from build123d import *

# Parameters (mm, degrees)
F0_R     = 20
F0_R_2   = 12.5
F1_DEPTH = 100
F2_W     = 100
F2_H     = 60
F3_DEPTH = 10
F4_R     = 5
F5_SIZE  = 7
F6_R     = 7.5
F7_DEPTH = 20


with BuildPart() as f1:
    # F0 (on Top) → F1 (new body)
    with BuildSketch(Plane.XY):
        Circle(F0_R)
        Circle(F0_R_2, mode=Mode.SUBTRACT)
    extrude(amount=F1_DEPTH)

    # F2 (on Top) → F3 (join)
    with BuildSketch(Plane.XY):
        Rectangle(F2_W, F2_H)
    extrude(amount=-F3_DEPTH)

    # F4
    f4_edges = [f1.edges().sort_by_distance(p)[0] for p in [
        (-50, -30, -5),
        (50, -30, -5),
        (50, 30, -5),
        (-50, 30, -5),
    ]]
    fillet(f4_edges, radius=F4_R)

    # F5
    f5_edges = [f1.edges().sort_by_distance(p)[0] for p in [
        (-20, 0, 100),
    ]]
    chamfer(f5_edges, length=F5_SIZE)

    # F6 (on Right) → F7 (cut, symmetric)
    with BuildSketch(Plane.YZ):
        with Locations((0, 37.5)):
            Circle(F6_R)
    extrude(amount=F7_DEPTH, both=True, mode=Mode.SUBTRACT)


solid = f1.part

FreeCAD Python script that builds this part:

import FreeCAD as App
import Part
import Sketcher

V = App.Vector


def edges_at(feature, points):
    """Names of the edges that pass closest to the given points."""
    edges = feature.Shape.Edges
    near = lambda p: min(range(len(edges)), key=lambda i: edges[i].distToShape(Part.Vertex(*p))[0])
    return sorted({f"Edge{near(p) + 1}" for p in points})

doc = App.newDocument("Part")
body = doc.addObject("PartDesign::Body", "Body")

# Sketch on XY plane
sketch1 = body.newObject("Sketcher::SketchObject", "Sketch")
sketch1.AttachmentSupport = (doc.getObject("XY_Plane"), [""])
sketch1.MapMode = "FlatFace"
sketch1.addGeometry([
    Part.Circle(V(0, 0, 0), V(0, 0, 1), 20),
    Part.Circle(V(0, 0, 0), V(0, 0, 1), 12),
], False)
sketch1.addConstraint([
    Sketcher.Constraint("Coincident", 0, 3, -1, 1),
    Sketcher.Constraint("Coincident", 1, 3, -1, 1),
    Sketcher.Constraint("Diameter", 0, 40.0),
    Sketcher.Constraint("Diameter", 1, 25.0),
])
pad1 = body.newObject("PartDesign::Pad", "Pad")
pad1.Profile = sketch1
pad1.Length = 100

# Sketch on XY plane
sketch2 = body.newObject("Sketcher::SketchObject", "Sketch001")
sketch2.AttachmentSupport = (doc.getObject("XY_Plane"), [""])
sketch2.MapMode = "FlatFace"
sketch2.addGeometry([
    Part.LineSegment(V(-50, 30, 0), V(-50, -30, 0)),
    Part.LineSegment(V(-50, -30, 0), V(50, -30, 0)),
    Part.LineSegment(V(50, -30, 0), V(50, 30, 0)),
    Part.LineSegment(V(50, 30, 0), V(-50, 30, 0)),
], False)
sketch2.addConstraint([
    Sketcher.Constraint("Coincident", 0, 2, 1, 1),
    Sketcher.Constraint("Coincident", 1, 2, 2, 1),
    Sketcher.Constraint("Coincident", 2, 2, 3, 1),
    Sketcher.Constraint("Coincident", 3, 2, 0, 1),
    Sketcher.Constraint("Vertical", 0),
    Sketcher.Constraint("Horizontal", 1),
    Sketcher.Constraint("Vertical", 2),
    Sketcher.Constraint("Horizontal", 3),
    Sketcher.Constraint("Symmetric", 0, 2, 2, 2, -1, 1),
    Sketcher.Constraint("DistanceX", 1, 1, 1, 2, 100.0),
    Sketcher.Constraint("DistanceY", 0, 2, 0, 1, 60.0),
])
pad2 = body.newObject("PartDesign::Pad", "Pad001")
pad2.Profile = sketch2
pad2.Length = 10
pad2.Reversed = True
doc.recompute()

fillet = body.newObject("PartDesign::Fillet", "Fillet")
fillet.Base = (pad2, edges_at(pad2, [
    (-50, -30, -5),
    (50, -30, -5),
    (50, 30, -5),
    (-50, 30, -5),
]))
fillet.Radius = 5
doc.recompute()

chamfer = body.newObject("PartDesign::Chamfer", "Chamfer")
chamfer.Base = (fillet, edges_at(fillet, [(-20, 0, 100)]))
chamfer.Size = 7

# Sketch on YZ plane
sketch3 = body.newObject("Sketcher::SketchObject", "Sketch002")
sketch3.AttachmentSupport = (doc.getObject("YZ_Plane"), [""])
sketch3.MapMode = "FlatFace"
sketch3.addGeometry(Part.Circle(V(0, 38, 0), V(0, 0, 1), 8), False)
sketch3.addConstraint([
    Sketcher.Constraint("PointOnObject", 0, 3, -2),
    Sketcher.Constraint("Diameter", 0, 15.0),
    Sketcher.Constraint("DistanceY", -1, 1, 0, 3, 37.5),
])
pocket1 = body.newObject("PartDesign::Pocket", "Pocket")
pocket1.Profile = sketch3
pocket1.Length = 40
pocket1.Midplane = True

doc.recompute()
